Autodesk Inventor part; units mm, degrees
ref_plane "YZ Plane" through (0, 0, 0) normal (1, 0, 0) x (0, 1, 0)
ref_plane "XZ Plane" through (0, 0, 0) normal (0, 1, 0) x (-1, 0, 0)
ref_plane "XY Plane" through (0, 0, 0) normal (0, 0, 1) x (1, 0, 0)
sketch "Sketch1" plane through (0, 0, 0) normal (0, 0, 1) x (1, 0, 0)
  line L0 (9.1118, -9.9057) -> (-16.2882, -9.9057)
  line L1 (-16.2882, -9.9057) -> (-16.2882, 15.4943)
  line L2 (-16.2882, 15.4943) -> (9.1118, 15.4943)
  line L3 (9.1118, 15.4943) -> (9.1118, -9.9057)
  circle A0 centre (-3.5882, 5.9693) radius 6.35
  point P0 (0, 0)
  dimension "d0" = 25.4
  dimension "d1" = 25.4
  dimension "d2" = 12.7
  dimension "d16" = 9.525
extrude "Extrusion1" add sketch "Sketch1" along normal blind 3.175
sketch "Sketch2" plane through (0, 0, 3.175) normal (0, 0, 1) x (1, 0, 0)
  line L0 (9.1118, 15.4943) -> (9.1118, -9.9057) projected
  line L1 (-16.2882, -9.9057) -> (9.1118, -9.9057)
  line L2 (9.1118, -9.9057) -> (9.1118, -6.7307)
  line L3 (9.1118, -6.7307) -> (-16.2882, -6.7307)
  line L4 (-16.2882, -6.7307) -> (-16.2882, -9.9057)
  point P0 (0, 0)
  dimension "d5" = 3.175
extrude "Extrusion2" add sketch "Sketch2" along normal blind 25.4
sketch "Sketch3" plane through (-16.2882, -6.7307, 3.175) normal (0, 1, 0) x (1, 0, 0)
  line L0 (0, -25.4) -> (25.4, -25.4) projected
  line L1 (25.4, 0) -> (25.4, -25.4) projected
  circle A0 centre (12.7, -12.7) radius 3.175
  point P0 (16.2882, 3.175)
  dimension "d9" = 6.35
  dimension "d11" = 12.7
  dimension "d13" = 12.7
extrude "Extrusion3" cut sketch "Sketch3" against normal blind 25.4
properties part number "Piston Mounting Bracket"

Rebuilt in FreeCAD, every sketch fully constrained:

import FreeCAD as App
import Part
import Sketcher
Q = App.Units.Quantity

doc = App.newDocument("Part")
params = doc.addObject("Spreadsheet::Sheet", "Params")
for row, (alias, value) in enumerate([
    ("sketch1_diameter", "0.5 in"),
    ("sketch1_width", "1 in"),
    ("pad1_length", "0.125 in"),
    ("sketch2_width", "1 in"),
    ("sketch2_height", "0.125 in"),
    ("pad2_length", "1 in"),
    ("sketch3_diameter", "0.25 in"),
    ("pocket1_length", "1 in"),
], start=1):
    params.set(f"A{row}", alias)
    params.set(f"B{row}", "=" + value)
    params.setAlias(f"B{row}", alias)

body = doc.addObject("PartDesign::Body", "Body")

# Sketch on XY plane
sketch1 = body.newObject("Sketcher::SketchObject", "Sketch")
sketch1.AttachmentSupport = (doc.getObject("XY_Plane"), [""])
sketch1.MapMode = "FlatFace"
sketch1.addGeometry([
    Part.LineSegment(App.Vector(-16, -10, 0), App.Vector(9, -10, 0)),  # 0
    Part.LineSegment(App.Vector(9, -10, 0), App.Vector(9, 15, 0)),  # 1
    Part.LineSegment(App.Vector(9, 15, 0), App.Vector(-16, 15, 0)),  # 2
    Part.LineSegment(App.Vector(-16, 15, 0), App.Vector(-16, -10, 0)),  # 3
    Part.Circle(App.Vector(-4, 6, 0), App.Vector(0, 0, 1), 6),  # 4
], False)
sketch1.addConstraint([
    Sketcher.Constraint("Coincident", 0, 2, 1, 1),
    Sketcher.Constraint("Coincident", 1, 2, 2, 1),
    Sketcher.Constraint("Coincident", 2, 2, 3, 1),
    Sketcher.Constraint("Coincident", 3, 2, 0, 1),
    Sketcher.Constraint("Horizontal", 0),
    Sketcher.Constraint("Vertical", 1),
    Sketcher.Constraint("Horizontal", 2),
    Sketcher.Constraint("Vertical", 3),
    Sketcher.Constraint("Equal", 2, 1),
    Sketcher.Constraint("Diameter", 4, Q("0.5 in")),
    Sketcher.Constraint("DistanceX", 0, 1, 0, 2, Q("1 in")),
    Sketcher.Constraint("DistanceX", 4, 3, 0, 2, Q("0.5 in")),
    Sketcher.Constraint("DistanceY", 4, 3, 1, 2, Q("0.375 in")),
    Sketcher.Constraint("DistanceY", 0, 2, -1, 1, Q("0.39 in")),
    Sketcher.Constraint("DistanceX", 4, 3, -1, 1, Q("3.5882 mm")),
])
sketch1.setExpression("Constraints[9]", "Params.sketch1_diameter")
sketch1.setExpression("Constraints[10]", "Params.sketch1_width")
pad1 = body.newObject("PartDesign::Pad", "Pad")
pad1.Profile = sketch1
pad1.setExpression("Length", "Params.pad1_length")

# Sketch on XY plane
sketch2 = body.newObject("Sketcher::SketchObject", "Sketch001")
sketch2.AttachmentSupport = (doc.getObject("XY_Plane"), [""])
sketch2.MapMode = "FlatFace"
sketch2.AttachmentOffset = App.Placement(App.Vector(0, 0, 0.125 * 25.4), App.Rotation())
sketch2.addGeometry([
    Part.LineSegment(App.Vector(9.1, -9.9, 0), App.Vector(9.1, -6.7, 0)),
    Part.LineSegment(App.Vector(9.1, -6.7, 0), App.Vector(-16.3, -6.7, 0)),
    Part.LineSegment(App.Vector(-16.3, -6.7, 0), App.Vector(-16.3, -9.9, 0)),
    Part.LineSegment(App.Vector(-16.3, -9.9, 0), App.Vector(9.1, -9.9, 0)),
], False)
sketch2.addConstraint([
    Sketcher.Constraint("Coincident", 0, 2, 1, 1),
    Sketcher.Constraint("Coincident", 1, 2, 2, 1),
    Sketcher.Constraint("Coincident", 2, 2, 3, 1),
    Sketcher.Constraint("Coincident", 3, 2, 0, 1),
    Sketcher.Constraint("Vertical", 0),
    Sketcher.Constraint("Horizontal", 1),
    Sketcher.Constraint("Vertical", 2),
    Sketcher.Constraint("Horizontal", 3),
    Sketcher.Constraint("DistanceX", 1, 2, 1, 1, Q("1 in")),
    Sketcher.Constraint("DistanceY", 0, 1, 0, 2, Q("0.125 in")),
    Sketcher.Constraint("DistanceY", 2, 2, -1, 1, Q("0.39 in")),
    Sketcher.Constraint("DistanceX", -1, 1, 0, 2, Q("9.1118 mm")),
])
sketch2.setExpression("Constraints[8]", "Params.sketch2_width")
sketch2.setExpression("Constraints[9]", "Params.sketch2_height")
pad2 = body.newObject("PartDesign::Pad", "Pad001")
pad2.Profile = sketch2
pad2.setExpression("Length", "Params.pad2_length")

# Sketch on XZ plane
sketch3 = body.newObject("Sketcher::SketchObject", "Sketch002")
sketch3.AttachmentSupport = (doc.getObject("XZ_Plane"), [""])
sketch3.MapMode = "FlatFace"
sketch3.AttachmentOffset = App.Placement(App.Vector(0, 0, 0.2649882 * 25.4), App.Rotation())
sketch3.addGeometry(Part.Circle(App.Vector(-3.6, 15.9, 0), App.Vector(0, 0, 1), 3.2), False)
sketch3.addConstraint([
    Sketcher.Constraint("Diameter", 0, Q("0.25 in")),
    Sketcher.Constraint("DistanceY", -1, 1, 0, 3, Q("0.625 in")),
    Sketcher.Constraint("DistanceX", 0, 3, -1, 1, Q("3.5882 mm")),
])
sketch3.setExpression("Constraints[0]", "Params.sketch3_diameter")
pocket1 = body.newObject("PartDesign::Pocket", "Pocket")
pocket1.Profile = sketch3
pocket1.setExpression("Length", "Params.pocket1_length")
pocket1.Reversed = True

doc.recompute()
